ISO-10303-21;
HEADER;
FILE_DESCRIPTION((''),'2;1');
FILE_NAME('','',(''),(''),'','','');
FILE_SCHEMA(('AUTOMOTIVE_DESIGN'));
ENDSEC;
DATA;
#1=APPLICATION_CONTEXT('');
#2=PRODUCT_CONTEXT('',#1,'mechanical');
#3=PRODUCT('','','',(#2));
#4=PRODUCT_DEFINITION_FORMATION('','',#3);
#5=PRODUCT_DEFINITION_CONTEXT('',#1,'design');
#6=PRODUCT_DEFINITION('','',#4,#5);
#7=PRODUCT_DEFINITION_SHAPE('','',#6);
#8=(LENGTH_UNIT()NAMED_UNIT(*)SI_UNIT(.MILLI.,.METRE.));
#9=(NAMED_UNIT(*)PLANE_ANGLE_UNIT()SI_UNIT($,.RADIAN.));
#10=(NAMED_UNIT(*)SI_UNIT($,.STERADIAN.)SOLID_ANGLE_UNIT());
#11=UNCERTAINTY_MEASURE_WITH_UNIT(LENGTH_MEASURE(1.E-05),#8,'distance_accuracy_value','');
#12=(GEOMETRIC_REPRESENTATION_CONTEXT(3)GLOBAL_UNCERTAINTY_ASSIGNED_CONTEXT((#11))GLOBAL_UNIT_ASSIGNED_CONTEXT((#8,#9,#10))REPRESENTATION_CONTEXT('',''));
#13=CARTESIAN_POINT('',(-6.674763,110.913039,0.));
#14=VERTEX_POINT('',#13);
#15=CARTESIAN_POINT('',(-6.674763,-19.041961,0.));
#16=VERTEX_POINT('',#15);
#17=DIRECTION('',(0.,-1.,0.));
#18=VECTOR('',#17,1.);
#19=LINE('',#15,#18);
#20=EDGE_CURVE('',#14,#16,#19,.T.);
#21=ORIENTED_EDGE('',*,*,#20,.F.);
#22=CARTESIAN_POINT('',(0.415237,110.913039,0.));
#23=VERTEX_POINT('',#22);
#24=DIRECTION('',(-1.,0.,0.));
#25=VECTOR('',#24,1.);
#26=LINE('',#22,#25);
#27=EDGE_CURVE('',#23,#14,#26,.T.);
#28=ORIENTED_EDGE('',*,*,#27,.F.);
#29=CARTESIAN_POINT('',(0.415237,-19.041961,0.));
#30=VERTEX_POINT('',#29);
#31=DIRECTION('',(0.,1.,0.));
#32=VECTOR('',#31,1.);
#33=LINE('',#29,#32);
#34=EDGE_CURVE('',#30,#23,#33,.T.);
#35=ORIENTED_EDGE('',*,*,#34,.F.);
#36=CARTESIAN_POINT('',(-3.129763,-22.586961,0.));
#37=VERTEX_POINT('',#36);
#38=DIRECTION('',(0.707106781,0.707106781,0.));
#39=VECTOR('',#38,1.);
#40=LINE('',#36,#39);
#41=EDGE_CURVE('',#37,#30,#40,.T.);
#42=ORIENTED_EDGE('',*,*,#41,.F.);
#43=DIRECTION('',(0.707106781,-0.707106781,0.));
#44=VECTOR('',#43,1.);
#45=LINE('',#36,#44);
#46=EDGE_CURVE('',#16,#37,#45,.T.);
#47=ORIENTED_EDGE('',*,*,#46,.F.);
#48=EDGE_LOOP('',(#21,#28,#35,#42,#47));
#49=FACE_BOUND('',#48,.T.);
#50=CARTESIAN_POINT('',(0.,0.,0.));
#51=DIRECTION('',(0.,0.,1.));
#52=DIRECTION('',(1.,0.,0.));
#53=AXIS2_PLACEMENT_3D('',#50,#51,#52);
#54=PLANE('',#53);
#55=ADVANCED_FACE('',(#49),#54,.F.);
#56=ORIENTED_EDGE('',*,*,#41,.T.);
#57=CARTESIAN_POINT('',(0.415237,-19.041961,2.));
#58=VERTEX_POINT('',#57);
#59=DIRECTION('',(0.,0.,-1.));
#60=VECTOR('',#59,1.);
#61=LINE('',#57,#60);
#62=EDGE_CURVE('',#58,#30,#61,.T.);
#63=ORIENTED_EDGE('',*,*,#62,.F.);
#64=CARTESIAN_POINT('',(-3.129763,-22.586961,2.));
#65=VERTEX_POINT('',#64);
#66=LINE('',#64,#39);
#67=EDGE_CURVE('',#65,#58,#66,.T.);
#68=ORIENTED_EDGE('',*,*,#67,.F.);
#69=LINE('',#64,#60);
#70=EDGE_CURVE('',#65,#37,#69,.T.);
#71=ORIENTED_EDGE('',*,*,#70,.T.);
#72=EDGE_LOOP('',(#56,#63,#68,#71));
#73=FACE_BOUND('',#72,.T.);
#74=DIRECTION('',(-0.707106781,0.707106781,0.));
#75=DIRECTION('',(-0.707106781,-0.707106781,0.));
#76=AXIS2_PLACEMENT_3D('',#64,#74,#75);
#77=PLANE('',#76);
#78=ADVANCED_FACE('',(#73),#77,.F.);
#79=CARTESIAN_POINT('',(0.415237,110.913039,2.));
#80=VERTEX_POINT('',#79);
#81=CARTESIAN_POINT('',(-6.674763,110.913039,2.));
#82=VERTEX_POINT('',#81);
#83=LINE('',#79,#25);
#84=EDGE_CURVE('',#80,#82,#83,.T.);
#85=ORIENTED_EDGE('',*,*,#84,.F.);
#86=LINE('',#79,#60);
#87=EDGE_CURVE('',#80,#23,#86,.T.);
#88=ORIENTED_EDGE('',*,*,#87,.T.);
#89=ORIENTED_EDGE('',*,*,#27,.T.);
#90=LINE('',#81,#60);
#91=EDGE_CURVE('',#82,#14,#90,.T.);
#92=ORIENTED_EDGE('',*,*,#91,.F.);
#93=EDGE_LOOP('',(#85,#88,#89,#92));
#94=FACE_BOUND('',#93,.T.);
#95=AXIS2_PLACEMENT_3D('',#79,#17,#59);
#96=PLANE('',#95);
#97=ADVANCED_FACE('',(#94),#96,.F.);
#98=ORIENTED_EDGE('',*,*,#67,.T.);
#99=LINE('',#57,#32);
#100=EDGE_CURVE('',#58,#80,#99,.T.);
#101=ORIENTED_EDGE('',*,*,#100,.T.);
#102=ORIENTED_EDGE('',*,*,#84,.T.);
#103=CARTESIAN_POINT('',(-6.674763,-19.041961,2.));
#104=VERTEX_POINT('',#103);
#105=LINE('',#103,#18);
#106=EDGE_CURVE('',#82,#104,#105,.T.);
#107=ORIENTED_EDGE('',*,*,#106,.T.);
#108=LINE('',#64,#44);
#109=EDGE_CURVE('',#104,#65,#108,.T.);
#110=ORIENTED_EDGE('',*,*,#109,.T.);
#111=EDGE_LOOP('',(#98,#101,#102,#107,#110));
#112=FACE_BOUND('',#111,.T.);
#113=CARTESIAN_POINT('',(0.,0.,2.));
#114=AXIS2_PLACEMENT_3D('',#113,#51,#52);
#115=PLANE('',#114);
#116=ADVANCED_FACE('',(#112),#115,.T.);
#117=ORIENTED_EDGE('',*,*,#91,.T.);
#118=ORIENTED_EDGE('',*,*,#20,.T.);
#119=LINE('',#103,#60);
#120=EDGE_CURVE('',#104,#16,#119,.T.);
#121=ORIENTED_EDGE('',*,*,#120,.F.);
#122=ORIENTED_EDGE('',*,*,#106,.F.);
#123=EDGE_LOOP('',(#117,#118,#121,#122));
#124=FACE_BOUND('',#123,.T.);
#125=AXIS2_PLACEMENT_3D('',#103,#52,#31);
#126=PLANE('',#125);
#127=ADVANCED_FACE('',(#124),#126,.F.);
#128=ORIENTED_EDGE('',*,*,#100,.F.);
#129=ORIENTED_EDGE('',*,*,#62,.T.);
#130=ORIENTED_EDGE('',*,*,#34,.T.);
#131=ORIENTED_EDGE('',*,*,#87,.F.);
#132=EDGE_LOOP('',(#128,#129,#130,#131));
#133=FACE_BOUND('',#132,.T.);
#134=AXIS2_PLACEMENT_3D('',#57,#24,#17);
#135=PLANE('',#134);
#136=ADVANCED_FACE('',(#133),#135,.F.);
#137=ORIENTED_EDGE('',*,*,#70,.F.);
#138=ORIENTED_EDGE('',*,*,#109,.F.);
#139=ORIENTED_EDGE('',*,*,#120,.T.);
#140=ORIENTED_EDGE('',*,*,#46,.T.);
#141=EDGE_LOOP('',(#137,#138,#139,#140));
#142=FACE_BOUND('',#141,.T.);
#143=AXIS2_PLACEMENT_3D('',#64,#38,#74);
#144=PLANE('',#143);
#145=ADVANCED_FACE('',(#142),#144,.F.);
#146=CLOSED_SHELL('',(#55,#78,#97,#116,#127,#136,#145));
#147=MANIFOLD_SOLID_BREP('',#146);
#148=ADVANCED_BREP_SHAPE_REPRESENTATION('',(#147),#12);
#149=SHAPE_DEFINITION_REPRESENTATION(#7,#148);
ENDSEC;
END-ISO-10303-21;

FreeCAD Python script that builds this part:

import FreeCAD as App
import Part
import Sketcher
from FreeCAD import Vector
Q = App.Units.Quantity


def add_polygon(sketch, points):
    """Adds a closed chain of lines whose ends are joined by coincident constraints."""
    first, n = sketch.GeometryCount, len(points)
    for a, b in zip(points, points[1:] + points[:1]):
        sketch.addGeometry(Part.LineSegment(App.Vector(*a, 0), App.Vector(*b, 0)), False)
    for i in range(n):
        sketch.addConstraint(Sketcher.Constraint("Coincident", first + i, 2, first + (i + 1) % n, 1))

doc = App.newDocument("Part")
body = doc.addObject("PartDesign::Body", "Body")

# Sketch on XY plane
sketch1 = doc.addObject("Sketcher::SketchObject", "Sketch")
body.addObject(sketch1)
sketch1.AttachmentSupport = (doc.XY_Plane, [""])
sketch1.MapMode = "FlatFace"
add_polygon(sketch1, [(-3.129763, -22.586961), (0.415237, -19.041961), (0.415237, 110.913039), (-6.674763, 110.913039), (-6.674763, -19.041961)])  # lines 0-4
sketch1.addConstraint(Sketcher.Constraint("Vertical", 1))
sketch1.addConstraint(Sketcher.Constraint("Horizontal", 2))
sketch1.addConstraint(Sketcher.Constraint("Vertical", 3))
sketch1.addConstraint(Sketcher.Constraint("Perpendicular", 0, 4))
sketch1.addConstraint(Sketcher.Constraint("Horizontal", 0, 2, 3, 2))
sketch1.addConstraint(Sketcher.Constraint("Equal", 0, 4))
sketch1.addConstraint(Sketcher.Constraint("DistanceX", 2, 2, 2, 1, Q("7.09 mm")))
sketch1.addConstraint(Sketcher.Constraint("DistanceY", 4, 2, 1, 2, Q("133.5 mm")))
sketch1.addConstraint(Sketcher.Constraint("DistanceY", 0, 2, -1, 1, Q("19.041961 mm")))
sketch1.addConstraint(Sketcher.Constraint("DistanceX", -1, 1, 0, 2, Q("0.415237 mm")))
pad1 = doc.addObject("PartDesign::Pad", "Pad")
body.addObject(pad1)
pad1.Profile = sketch1
pad1.Length = 2

doc.recompute()
